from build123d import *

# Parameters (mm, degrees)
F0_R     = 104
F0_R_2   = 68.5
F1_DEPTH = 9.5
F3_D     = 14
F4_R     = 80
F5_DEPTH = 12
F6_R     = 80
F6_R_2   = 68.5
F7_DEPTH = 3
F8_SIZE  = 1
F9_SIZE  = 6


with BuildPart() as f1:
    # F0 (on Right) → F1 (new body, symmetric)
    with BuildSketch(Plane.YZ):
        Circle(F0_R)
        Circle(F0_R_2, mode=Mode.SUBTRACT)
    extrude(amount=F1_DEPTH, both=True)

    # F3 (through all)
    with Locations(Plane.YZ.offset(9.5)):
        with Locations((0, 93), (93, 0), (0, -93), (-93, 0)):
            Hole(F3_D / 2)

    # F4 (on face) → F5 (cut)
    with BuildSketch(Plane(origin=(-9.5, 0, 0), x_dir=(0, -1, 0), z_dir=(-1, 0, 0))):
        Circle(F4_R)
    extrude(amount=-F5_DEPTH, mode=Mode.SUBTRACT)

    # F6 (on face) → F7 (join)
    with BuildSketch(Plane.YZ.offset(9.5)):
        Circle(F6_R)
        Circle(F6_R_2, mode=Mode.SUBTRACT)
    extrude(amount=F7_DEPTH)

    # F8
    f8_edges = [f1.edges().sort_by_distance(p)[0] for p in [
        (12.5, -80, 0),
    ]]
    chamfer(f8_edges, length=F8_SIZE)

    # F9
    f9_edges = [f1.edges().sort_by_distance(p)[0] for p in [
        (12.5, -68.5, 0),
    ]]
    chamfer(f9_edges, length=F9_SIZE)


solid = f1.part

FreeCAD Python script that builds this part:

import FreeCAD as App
import Part
import Sketcher

V = App.Vector
Q = App.Units.Quantity


def edges_at(feature, points):
    """Names of the edges that pass closest to the given points."""
    edges = feature.Shape.Edges
    near = lambda p: min(range(len(edges)), key=lambda i: edges[i].distToShape(Part.Vertex(*p))[0])
    return sorted({f"Edge{near(p) + 1}" for p in points})

doc = App.newDocument("Part")
body = doc.addObject("PartDesign::Body", "Body")

sketch1 = body.newObject("Sketcher::SketchObject", "Sketch")
sketch1.AttachmentSupport = (doc.getObject("YZ_Plane"), [""])
sketch1.MapMode = "FlatFace"
sketch1.addGeometry(Part.Circle(V(0, 0, 0), V(0, 0, 1), 104), False)
sketch1.addGeometry(Part.Circle(V(0, 0, 0), V(0, 0, 1), 68), False)
sketch1.addConstraint(Sketcher.Constraint("Coincident", 0, 3, -1, 1))
sketch1.addConstraint(Sketcher.Constraint("Coincident", 1, 3, -1, 1))
sketch1.addConstraint(Sketcher.Constraint("Diameter", 0, Q("208 mm")))
sketch1.addConstraint(Sketcher.Constraint("Diameter", 1, Q("137 mm")))
pad1 = body.newObject("PartDesign::Pad", "Pad")
pad1.Profile = sketch1
pad1.Length = 19
pad1.Midplane = True

sketch2 = body.newObject("Sketcher::SketchObject", "Sketch001")
sketch2.AttachmentSupport = (doc.getObject("YZ_Plane"), [""])
sketch2.MapMode = "FlatFace"
sketch2.AttachmentOffset = App.Placement(V(0, 0, 9.5), App.Rotation())
sketch2.addGeometry(Part.Circle(V(0, 93, 0), V(0, 0, 1), 7), False)
sketch2.addGeometry(Part.Circle(V(93, 0, 0), V(0, 0, 1), 7), False)
sketch2.addGeometry(Part.Circle(V(0, -93, 0), V(0, 0, 1), 7), False)
sketch2.addGeometry(Part.Circle(V(-93, 0, 0), V(0, 0, 1), 7), False)
sketch2.addConstraint(Sketcher.Constraint("Equal", 0, 1))
sketch2.addConstraint(Sketcher.Constraint("Equal", 1, 2))
sketch2.addConstraint(Sketcher.Constraint("Equal", 2, 3))
sketch2.addConstraint(Sketcher.Constraint("Symmetric", 0, 3, 2, 3, -1, 1))
sketch2.addConstraint(Sketcher.Constraint("Symmetric", 1, 3, 3, 3, -1, 1))
sketch2.addConstraint(Sketcher.Constraint("PointOnObject", 0, 3, -2))
sketch2.addConstraint(Sketcher.Constraint("PointOnObject", 1, 3, -1))
sketch2.addConstraint(Sketcher.Constraint("Diameter", 0, Q("14 mm")))
sketch2.addConstraint(Sketcher.Constraint("DistanceY", -1, 1, 0, 3, Q("93 mm")))
sketch2.addConstraint(Sketcher.Constraint("DistanceX", -1, 1, 1, 3, Q("93 mm")))
doc.recompute()
hole = body.newObject("PartDesign::Hole", "Hole")
hole.Profile = sketch2
hole.ThreadType = "None"
hole.Diameter = 14
hole.DepthType = "ThroughAll"

sketch3 = body.newObject("Sketcher::SketchObject", "Sketch002")
sketch3.AttachmentSupport = (doc.getObject("YZ_Plane"), [""])
sketch3.MapMode = "FlatFace"
sketch3.AttachmentOffset = App.Placement(V(0, 0, -9.5), App.Rotation())
sketch3.addGeometry(Part.Circle(V(0, 0, 0), V(0, 0, 1), 80), False)
sketch3.addConstraint(Sketcher.Constraint("Coincident", 0, 3, -1, 1))
sketch3.addConstraint(Sketcher.Constraint("Diameter", 0, Q("160 mm")))
pocket1 = body.newObject("PartDesign::Pocket", "Pocket")
pocket1.Profile = sketch3
pocket1.Length = 12
pocket1.Reversed = True

sketch4 = body.newObject("Sketcher::SketchObject", "Sketch003")
sketch4.AttachmentSupport = (doc.getObject("YZ_Plane"), [""])
sketch4.MapMode = "FlatFace"
sketch4.AttachmentOffset = App.Placement(V(0, 0, 9.5), App.Rotation())
sketch4.addGeometry(Part.Circle(V(0, 0, 0), V(0, 0, 1), 80), False)
sketch4.addGeometry(Part.Circle(V(0, 0, 0), V(0, 0, 1), 68), False)
sketch4.addConstraint(Sketcher.Constraint("Coincident", 0, 3, -1, 1))
sketch4.addConstraint(Sketcher.Constraint("Coincident", 1, 3, -1, 1))
sketch4.addConstraint(Sketcher.Constraint("Diameter", 0, Q("160 mm")))
sketch4.addConstraint(Sketcher.Constraint("Diameter", 1, Q("137 mm")))
pad2 = body.newObject("PartDesign::Pad", "Pad001")
pad2.Profile = sketch4
pad2.Length = 3
doc.recompute()

chamfer = body.newObject("PartDesign::Chamfer", "Chamfer")
chamfer.Base = (pad2, edges_at(pad2, [(12.5, -80, 0)]))
chamfer.Size = 1
doc.recompute()

chamfer2 = body.newObject("PartDesign::Chamfer", "Chamfer001")
chamfer2.Base = (chamfer, edges_at(chamfer, [(12.5, -68.5, 0)]))
chamfer2.Size = 6

doc.recompute()
